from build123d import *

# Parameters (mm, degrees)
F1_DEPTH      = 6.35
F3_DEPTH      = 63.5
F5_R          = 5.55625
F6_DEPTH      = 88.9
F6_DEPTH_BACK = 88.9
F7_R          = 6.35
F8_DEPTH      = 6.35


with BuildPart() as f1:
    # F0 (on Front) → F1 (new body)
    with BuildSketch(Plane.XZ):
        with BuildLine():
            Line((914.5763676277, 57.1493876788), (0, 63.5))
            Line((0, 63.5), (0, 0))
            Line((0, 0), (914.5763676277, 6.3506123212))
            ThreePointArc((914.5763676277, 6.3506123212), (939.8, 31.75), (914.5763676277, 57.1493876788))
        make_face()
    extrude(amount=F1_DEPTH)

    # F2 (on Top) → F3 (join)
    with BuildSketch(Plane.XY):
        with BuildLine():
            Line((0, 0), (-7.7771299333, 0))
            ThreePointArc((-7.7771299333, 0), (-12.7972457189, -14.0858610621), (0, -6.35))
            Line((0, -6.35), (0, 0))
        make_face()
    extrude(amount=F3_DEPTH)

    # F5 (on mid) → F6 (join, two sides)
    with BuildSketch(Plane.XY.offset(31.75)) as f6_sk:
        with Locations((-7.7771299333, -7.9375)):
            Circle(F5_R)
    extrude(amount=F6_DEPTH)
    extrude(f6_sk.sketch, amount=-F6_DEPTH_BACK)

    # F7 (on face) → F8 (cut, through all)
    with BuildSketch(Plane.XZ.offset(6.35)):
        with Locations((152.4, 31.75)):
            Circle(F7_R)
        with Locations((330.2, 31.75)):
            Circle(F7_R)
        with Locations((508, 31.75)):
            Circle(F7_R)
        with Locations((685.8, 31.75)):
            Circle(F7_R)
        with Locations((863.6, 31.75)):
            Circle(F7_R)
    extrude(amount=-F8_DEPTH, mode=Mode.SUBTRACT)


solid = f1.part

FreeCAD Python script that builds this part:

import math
import FreeCAD as App
import Part
import Sketcher
from FreeCAD import Vector
Q = App.Units.Quantity

doc = App.newDocument("Part")
body = doc.addObject("PartDesign::Body", "Body")

# Sketch on XZ plane
sketch1 = body.newObject("Sketcher::SketchObject", "Sketch")
sketch1.AttachmentSupport = (doc.getObject("XZ_Plane"), [""])
sketch1.MapMode = "FlatFace"
sketch1.addGeometry(Part.LineSegment(Vector(915, 57, 0), Vector(0, 64, 0)), False)
sketch1.addGeometry(Part.LineSegment(Vector(0, 64, 0), Vector(0, 0, 0)), False)
sketch1.addGeometry(Part.LineSegment(Vector(0, 0, 0), Vector(915, 6, 0)), False)
sketch1.addGeometry(Part.ArcOfCircle(Part.Circle(Vector(914, 32, 0), Vector(0, 0, 1), 25), math.radians(-90), math.radians(90)), False)
sketch1.addConstraint(Sketcher.Constraint("Coincident", 0, 2, 1, 1))
sketch1.addConstraint(Sketcher.Constraint("Coincident", 1, 2, 2, 1))
sketch1.addConstraint(Sketcher.Constraint("Tangent", 2, 2, 3, 1))
sketch1.addConstraint(Sketcher.Constraint("Tangent", 3, 2, 0, 1))
sketch1.addConstraint(Sketcher.Constraint("Vertical", 1))
sketch1.addConstraint(Sketcher.Constraint("Coincident", 1, 2, -1, 1))
sketch1.addConstraint(Sketcher.Constraint("Equal", 0, 2))
sketch1.addConstraint(Sketcher.Constraint("Radius", 3, Q("1 in")))
sketch1.addConstraint(Sketcher.Constraint("DistanceY", 1, 2, 1, 1, Q("2.5 in")))
sketch1.addConstraint(Sketcher.Constraint("DistanceX", -1, 1, 3, 3, Q("36 in")))
pad1 = body.newObject("PartDesign::Pad", "Pad")
pad1.Profile = sketch1
pad1.Length = Q("0.25 in")

# Sketch on XY plane
sketch2 = body.newObject("Sketcher::SketchObject", "Sketch001")
sketch2.AttachmentSupport = (doc.getObject("XY_Plane"), [""])
sketch2.MapMode = "FlatFace"
sketch2.addGeometry(Part.LineSegment(Vector(0, 0, 0), Vector(-8, 0, 0)), False)
sketch2.addGeometry(Part.ArcOfCircle(Part.Circle(Vector(-8, -8, 0), Vector(0, 0, 1), 8), math.radians(90), math.radians(372)), False)
sketch2.addGeometry(Part.LineSegment(Vector(0, -6, 0), Vector(0, 0, 0)), False)
sketch2.addConstraint(Sketcher.Constraint("Tangent", 0, 2, 1, 1))
sketch2.addConstraint(Sketcher.Constraint("Coincident", 1, 2, 2, 1))
sketch2.addConstraint(Sketcher.Constraint("Coincident", 2, 2, 0, 1))
sketch2.addConstraint(Sketcher.Constraint("Horizontal", 0))
sketch2.addConstraint(Sketcher.Constraint("Vertical", 2))
sketch2.addConstraint(Sketcher.Constraint("Coincident", 2, 2, -1, 1))
sketch2.addConstraint(Sketcher.Constraint("Radius", 1, Q("0.3125 in")))
sketch2.addConstraint(Sketcher.Constraint("DistanceY", 2, 1, 2, 2, Q("0.25 in")))
pad2 = body.newObject("PartDesign::Pad", "Pad001")
pad2.Profile = sketch2
pad2.Length = Q("2.5 in")

# Sketch on XY plane
sketch3 = body.newObject("Sketcher::SketchObject", "Sketch002")
sketch3.AttachmentSupport = (doc.getObject("XY_Plane"), [""])
sketch3.MapMode = "FlatFace"
sketch3.AttachmentOffset = App.Placement(Vector(0, 0, 1.25 * 25.4), App.Rotation())
sketch3.addGeometry(Part.Circle(Vector(-8, -8, 0), Vector(0, 0, 1), 6), False)
sketch3.addConstraint(Sketcher.Constraint("Diameter", 0, Q("0.4375 in")))
sketch3.addConstraint(Sketcher.Constraint("DistanceY", 0, 3, -1, 1, Q("0.3125 in")))
sketch3.addConstraint(Sketcher.Constraint("DistanceX", 0, 3, -1, 1, 7.77713))
pad3 = body.newObject("PartDesign::Pad", "Pad002")
pad3.Profile = sketch3
pad3.Type = "TwoLengths"
pad3.Length = Q("3.5 in")
pad3.Length2 = Q("3.5 in")

# Sketch on XZ plane
sketch4 = body.newObject("Sketcher::SketchObject", "Sketch003")
sketch4.AttachmentSupport = (doc.getObject("XZ_Plane"), [""])
sketch4.MapMode = "FlatFace"
sketch4.AttachmentOffset = App.Placement(Vector(0, 0, 0.25 * 25.4), App.Rotation())
sketch4.addGeometry(Part.Circle(Vector(152, 32, 0), Vector(0, 0, 1), 6), False)
sketch4.addGeometry(Part.Circle(Vector(330, 32, 0), Vector(0, 0, 1), 6), False)
sketch4.addGeometry(Part.Circle(Vector(508, 32, 0), Vector(0, 0, 1), 6), False)
sketch4.addGeometry(Part.Circle(Vector(686, 32, 0), Vector(0, 0, 1), 6), False)
sketch4.addGeometry(Part.Circle(Vector(864, 32, 0), Vector(0, 0, 1), 6), False)
sketch4.addConstraint(Sketcher.Constraint("Equal", 0, 1))
sketch4.addConstraint(Sketcher.Constraint("Equal", 1, 2))
sketch4.addConstraint(Sketcher.Constraint("Equal", 2, 3))
sketch4.addConstraint(Sketcher.Constraint("Equal", 3, 4))
sketch4.addConstraint(Sketcher.Constraint("Horizontal", 0, 3, 1, 3))
sketch4.addConstraint(Sketcher.Constraint("Horizontal", 1, 3, 2, 3))
sketch4.addConstraint(Sketcher.Constraint("Horizontal", 2, 3, 3, 3))
sketch4.addConstraint(Sketcher.Constraint("Horizontal", 3, 3, 4, 3))
sketch4.addConstraint(Sketcher.Constraint("Diameter", 0, Q("0.5 in")))
sketch4.addConstraint(Sketcher.Constraint("DistanceX", -1, 1, 0, 3, Q("6 in")))
sketch4.addConstraint(Sketcher.Constraint("DistanceX", -1, 1, 1, 3, Q("13 in")))
sketch4.addConstraint(Sketcher.Constraint("DistanceX", -1, 1, 2, 3, Q("20 in")))
sketch4.addConstraint(Sketcher.Constraint("DistanceX", -1, 1, 3, 3, Q("27 in")))
sketch4.addConstraint(Sketcher.Constraint("DistanceX", -1, 1, 4, 3, Q("34 in")))
sketch4.addConstraint(Sketcher.Constraint("DistanceY", -1, 1, 0, 3, Q("1.25 in")))
pocket1 = body.newObject("PartDesign::Pocket", "Pocket")
pocket1.Profile = sketch4
pocket1.Type = "ThroughAll"

doc.recompute()
